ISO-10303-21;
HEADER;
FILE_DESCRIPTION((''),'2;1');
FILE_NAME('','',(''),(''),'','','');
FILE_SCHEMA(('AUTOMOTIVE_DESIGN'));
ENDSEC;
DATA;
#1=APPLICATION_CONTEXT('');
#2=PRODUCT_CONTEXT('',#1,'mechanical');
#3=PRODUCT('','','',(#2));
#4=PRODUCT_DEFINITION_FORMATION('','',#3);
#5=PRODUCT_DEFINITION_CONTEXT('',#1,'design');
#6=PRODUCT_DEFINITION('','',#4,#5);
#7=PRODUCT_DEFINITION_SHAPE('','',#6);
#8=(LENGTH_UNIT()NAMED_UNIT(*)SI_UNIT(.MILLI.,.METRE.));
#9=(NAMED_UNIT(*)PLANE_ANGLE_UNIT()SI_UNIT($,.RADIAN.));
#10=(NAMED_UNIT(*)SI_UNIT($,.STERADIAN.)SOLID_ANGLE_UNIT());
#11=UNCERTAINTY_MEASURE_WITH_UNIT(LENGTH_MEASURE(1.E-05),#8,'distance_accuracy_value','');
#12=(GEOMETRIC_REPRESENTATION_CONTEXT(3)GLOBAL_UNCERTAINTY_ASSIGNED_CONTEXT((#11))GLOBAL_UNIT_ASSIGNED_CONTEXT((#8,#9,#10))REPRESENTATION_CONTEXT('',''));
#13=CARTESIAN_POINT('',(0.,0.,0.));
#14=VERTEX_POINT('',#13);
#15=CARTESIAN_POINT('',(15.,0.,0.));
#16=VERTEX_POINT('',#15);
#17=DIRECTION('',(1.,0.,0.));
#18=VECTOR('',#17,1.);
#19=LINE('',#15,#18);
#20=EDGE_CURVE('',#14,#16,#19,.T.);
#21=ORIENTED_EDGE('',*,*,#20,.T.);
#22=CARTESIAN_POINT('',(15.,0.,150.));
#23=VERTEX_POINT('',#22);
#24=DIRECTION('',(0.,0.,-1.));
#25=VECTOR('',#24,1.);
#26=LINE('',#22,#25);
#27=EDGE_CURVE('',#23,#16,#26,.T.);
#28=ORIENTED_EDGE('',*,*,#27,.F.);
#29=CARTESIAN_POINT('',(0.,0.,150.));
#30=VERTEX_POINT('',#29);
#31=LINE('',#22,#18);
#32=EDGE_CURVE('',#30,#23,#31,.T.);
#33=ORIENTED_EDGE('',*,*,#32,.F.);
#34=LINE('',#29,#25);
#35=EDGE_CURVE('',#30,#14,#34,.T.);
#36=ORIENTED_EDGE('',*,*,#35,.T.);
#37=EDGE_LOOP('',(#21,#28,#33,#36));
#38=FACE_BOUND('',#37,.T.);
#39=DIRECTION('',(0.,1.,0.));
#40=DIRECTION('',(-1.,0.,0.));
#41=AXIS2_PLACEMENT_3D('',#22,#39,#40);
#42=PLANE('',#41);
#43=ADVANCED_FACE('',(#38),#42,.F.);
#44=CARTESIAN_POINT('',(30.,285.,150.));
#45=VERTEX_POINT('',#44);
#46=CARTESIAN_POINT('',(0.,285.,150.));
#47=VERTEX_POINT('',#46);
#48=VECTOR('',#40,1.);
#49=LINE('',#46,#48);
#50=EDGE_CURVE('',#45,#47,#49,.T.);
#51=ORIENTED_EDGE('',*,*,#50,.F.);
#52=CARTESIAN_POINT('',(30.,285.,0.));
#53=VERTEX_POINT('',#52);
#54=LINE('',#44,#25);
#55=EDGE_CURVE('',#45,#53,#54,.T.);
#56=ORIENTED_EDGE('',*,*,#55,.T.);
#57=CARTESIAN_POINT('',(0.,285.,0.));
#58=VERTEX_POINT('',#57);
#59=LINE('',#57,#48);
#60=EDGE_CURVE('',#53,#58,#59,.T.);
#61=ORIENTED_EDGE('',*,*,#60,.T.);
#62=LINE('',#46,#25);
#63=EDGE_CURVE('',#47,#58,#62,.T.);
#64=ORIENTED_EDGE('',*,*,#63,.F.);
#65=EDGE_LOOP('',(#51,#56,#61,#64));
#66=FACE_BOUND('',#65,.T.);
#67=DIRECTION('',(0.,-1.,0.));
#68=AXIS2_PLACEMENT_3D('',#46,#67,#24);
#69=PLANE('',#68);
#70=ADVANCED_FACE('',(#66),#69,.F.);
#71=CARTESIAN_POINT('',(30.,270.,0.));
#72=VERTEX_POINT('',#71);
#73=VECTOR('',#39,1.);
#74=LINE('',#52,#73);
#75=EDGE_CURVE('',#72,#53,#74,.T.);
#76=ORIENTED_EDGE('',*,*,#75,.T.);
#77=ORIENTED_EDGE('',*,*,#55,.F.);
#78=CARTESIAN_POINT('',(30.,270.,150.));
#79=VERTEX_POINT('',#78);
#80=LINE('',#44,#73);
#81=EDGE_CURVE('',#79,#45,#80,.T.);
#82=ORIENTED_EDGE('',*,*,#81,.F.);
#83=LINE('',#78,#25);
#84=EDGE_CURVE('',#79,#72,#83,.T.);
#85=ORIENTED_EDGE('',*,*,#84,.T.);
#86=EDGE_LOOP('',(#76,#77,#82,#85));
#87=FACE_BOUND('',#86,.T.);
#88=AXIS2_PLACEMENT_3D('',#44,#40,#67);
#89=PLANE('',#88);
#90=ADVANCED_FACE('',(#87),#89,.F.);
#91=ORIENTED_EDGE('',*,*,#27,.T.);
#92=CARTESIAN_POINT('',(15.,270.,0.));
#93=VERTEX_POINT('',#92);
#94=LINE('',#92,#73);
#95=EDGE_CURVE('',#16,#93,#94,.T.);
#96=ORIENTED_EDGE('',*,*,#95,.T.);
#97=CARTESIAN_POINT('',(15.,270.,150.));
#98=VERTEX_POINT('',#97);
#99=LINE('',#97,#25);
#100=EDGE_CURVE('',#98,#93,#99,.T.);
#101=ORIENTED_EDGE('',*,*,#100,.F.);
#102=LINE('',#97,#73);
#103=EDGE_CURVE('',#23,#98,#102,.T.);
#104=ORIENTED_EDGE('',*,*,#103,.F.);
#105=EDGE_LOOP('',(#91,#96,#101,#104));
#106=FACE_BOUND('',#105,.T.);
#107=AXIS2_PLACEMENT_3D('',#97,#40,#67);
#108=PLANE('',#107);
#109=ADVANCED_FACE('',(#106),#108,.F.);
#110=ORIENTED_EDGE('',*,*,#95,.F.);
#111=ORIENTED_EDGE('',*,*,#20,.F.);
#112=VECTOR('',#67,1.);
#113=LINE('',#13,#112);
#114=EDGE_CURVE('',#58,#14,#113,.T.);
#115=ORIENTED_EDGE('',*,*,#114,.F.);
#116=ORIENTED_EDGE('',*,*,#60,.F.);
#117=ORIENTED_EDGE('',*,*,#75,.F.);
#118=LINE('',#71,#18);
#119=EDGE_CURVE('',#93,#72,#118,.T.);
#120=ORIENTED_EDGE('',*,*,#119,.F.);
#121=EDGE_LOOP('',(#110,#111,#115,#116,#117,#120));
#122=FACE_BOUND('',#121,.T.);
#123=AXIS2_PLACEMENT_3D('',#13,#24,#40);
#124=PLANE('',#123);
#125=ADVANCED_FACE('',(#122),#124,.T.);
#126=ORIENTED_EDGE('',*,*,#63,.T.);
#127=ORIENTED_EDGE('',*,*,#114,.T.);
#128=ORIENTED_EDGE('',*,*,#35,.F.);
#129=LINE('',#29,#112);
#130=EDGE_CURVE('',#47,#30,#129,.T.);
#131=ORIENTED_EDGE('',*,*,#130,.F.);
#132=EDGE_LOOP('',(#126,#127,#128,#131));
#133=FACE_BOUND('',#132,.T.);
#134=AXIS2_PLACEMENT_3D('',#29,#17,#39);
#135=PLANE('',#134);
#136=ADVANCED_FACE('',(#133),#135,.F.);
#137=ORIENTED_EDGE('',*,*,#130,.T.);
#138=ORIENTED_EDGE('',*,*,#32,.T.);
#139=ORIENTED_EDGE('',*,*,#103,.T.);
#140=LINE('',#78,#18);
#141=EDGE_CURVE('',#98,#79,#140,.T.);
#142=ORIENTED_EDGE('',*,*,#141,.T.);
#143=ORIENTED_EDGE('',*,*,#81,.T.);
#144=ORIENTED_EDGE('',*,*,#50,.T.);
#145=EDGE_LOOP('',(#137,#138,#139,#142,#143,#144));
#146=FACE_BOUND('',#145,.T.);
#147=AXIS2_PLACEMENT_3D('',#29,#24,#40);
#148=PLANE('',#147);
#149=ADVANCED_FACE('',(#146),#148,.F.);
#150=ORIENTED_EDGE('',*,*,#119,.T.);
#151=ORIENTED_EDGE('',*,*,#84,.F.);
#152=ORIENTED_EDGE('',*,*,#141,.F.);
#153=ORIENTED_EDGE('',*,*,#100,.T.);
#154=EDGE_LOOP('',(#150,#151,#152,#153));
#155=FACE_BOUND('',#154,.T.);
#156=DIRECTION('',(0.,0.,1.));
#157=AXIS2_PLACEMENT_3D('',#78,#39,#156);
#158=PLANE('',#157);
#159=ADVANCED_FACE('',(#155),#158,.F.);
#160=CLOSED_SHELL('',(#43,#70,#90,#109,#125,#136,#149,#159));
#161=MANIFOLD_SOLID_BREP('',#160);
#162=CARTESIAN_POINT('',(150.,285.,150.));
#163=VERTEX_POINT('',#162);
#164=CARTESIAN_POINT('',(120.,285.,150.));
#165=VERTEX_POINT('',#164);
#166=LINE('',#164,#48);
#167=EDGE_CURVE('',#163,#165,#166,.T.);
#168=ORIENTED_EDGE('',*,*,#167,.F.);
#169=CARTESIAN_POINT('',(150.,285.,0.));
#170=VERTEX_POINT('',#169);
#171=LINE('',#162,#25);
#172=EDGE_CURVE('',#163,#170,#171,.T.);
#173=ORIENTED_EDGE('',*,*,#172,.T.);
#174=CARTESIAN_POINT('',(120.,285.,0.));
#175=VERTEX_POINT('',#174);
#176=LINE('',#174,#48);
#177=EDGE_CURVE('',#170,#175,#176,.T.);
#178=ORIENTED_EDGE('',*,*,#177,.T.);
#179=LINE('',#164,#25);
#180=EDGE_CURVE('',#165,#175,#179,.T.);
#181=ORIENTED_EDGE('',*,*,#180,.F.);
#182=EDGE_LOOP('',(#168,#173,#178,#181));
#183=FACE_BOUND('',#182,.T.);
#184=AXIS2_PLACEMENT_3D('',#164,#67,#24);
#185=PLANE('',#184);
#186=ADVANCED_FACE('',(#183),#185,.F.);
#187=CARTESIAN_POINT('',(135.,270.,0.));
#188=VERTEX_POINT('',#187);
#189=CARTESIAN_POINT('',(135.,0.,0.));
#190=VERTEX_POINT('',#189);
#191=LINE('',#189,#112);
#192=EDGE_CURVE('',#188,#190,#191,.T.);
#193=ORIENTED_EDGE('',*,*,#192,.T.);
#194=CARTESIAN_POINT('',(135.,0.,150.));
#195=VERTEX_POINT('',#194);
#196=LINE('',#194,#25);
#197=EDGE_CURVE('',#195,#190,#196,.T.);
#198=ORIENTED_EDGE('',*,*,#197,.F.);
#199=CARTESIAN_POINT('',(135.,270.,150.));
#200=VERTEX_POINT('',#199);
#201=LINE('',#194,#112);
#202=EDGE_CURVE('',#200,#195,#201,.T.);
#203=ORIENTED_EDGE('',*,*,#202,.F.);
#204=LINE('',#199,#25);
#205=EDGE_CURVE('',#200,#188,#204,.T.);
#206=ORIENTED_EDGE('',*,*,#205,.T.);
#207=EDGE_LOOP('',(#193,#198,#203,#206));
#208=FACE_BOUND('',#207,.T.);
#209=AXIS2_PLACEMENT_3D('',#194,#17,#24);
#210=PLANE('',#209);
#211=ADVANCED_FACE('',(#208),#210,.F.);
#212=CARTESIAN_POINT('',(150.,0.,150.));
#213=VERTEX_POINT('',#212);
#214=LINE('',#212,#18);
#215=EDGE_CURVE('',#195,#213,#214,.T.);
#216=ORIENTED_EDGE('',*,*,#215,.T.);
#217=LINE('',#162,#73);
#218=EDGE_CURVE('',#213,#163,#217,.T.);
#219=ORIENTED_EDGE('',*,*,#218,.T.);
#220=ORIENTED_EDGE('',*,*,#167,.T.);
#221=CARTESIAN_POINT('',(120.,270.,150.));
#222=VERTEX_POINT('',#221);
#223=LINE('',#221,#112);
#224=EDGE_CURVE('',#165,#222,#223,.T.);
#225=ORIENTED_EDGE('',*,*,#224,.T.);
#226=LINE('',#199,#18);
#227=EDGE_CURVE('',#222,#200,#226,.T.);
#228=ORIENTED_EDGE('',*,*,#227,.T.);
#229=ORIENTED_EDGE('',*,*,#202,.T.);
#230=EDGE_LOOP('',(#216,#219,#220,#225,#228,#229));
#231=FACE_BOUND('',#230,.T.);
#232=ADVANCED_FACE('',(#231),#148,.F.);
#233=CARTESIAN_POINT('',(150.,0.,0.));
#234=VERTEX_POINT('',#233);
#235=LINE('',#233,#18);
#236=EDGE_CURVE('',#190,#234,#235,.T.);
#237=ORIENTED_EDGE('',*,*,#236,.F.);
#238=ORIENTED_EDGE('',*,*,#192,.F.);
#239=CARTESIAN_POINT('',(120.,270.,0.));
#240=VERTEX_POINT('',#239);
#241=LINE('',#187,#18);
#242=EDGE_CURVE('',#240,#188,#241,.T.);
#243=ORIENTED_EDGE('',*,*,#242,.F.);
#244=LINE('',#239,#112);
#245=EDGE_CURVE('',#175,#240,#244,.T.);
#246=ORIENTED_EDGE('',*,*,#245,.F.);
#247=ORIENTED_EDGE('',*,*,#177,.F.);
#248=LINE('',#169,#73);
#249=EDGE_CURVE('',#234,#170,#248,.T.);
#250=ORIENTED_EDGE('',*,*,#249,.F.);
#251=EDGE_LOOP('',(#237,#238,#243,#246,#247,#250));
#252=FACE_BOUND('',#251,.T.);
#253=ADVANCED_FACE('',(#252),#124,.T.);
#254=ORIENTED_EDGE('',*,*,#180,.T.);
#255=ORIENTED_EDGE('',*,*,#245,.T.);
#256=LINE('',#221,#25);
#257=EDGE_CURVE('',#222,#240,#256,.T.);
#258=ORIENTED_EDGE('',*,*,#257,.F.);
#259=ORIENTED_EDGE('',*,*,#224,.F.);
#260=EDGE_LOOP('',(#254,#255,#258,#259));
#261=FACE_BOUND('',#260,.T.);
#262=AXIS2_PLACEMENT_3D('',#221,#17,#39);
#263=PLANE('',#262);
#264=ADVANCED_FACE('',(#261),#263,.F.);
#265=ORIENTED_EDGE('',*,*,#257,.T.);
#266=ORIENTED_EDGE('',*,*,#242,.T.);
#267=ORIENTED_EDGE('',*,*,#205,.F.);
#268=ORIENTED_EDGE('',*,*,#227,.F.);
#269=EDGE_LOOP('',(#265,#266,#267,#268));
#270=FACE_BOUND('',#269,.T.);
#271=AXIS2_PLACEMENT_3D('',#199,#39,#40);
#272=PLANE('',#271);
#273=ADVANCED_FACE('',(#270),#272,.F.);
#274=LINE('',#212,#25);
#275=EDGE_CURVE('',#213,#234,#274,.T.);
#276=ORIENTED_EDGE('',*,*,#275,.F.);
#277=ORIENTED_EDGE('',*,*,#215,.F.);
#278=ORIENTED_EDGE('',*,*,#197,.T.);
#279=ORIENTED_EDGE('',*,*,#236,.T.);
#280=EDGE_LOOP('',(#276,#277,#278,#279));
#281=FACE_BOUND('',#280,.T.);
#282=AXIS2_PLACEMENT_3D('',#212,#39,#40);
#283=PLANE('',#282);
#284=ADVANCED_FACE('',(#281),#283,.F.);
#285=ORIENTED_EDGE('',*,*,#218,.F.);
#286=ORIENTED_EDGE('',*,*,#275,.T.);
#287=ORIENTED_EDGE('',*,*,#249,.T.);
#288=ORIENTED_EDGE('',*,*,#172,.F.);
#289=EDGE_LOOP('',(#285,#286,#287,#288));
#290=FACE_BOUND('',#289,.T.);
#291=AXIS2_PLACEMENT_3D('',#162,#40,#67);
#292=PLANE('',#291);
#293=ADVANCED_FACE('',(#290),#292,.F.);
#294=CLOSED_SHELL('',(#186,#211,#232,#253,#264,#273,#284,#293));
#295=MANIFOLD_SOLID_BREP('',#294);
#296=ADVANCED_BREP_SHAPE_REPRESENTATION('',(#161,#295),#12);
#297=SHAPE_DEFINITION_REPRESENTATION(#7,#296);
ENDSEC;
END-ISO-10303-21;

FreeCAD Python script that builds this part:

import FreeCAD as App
import Part
import Sketcher
Q = App.Units.Quantity


def add_polygon(sketch, points):
    """Adds a closed chain of lines whose ends are joined by coincident constraints."""
    first, n = sketch.GeometryCount, len(points)
    for a, b in zip(points, points[1:] + points[:1]):
        sketch.addGeometry(Part.LineSegment(App.Vector(*a, 0), App.Vector(*b, 0)), False)
    for i in range(n):
        sketch.addConstraint(Sketcher.Constraint("Coincident", first + i, 2, first + (i + 1) % n, 1))

doc = App.newDocument("Part")
body = doc.addObject("PartDesign::Body", "Body")

# Sketch on XY plane
sketch1 = doc.addObject("Sketcher::SketchObject", "Sketch")
body.addObject(sketch1)
sketch1.AttachmentSupport = (doc.XY_Plane, [""])
sketch1.MapMode = "FlatFace"
add_polygon(sketch1, [(0, 285), (0, 0), (15, 0), (15, 270), (30, 270), (30, 285)])  # lines 0-5
sketch1.addConstraint(Sketcher.Constraint("Vertical", 0))
sketch1.addConstraint(Sketcher.Constraint("Horizontal", 1))
sketch1.addConstraint(Sketcher.Constraint("Vertical", 2))
sketch1.addConstraint(Sketcher.Constraint("Horizontal", 3))
sketch1.addConstraint(Sketcher.Constraint("Vertical", 4))
sketch1.addConstraint(Sketcher.Constraint("Horizontal", 5))
sketch1.addConstraint(Sketcher.Constraint("Coincident", 0, 2, -1, 1))
sketch1.addConstraint(Sketcher.Constraint("Equal", 1, 3))
sketch1.addConstraint(Sketcher.Constraint("Equal", 3, 4))
sketch1.addConstraint(Sketcher.Constraint("DistanceX", 1, 1, 1, 2, Q("15 mm")))
sketch1.addConstraint(Sketcher.Constraint("DistanceY", 0, 2, 0, 1, Q("285 mm")))
pad1 = doc.addObject("PartDesign::Pad", "Pad")
body.addObject(pad1)
pad1.Profile = sketch1
pad1.Length = 150
body2 = doc.addObject("PartDesign::Body", "Body001")

# Sketch on XY plane
sketch2 = doc.addObject("Sketcher::SketchObject", "Sketch001")
body2.addObject(sketch2)
sketch2.AttachmentSupport = (doc.getObject("XY_Plane001"), [""])
sketch2.MapMode = "FlatFace"
add_polygon(sketch2, [(135, 270), (135, 0), (150, 0), (150, 285), (120, 285), (120, 270)])  # lines 0-5
sketch2.addConstraint(Sketcher.Constraint("Vertical", 0))
sketch2.addConstraint(Sketcher.Constraint("Horizontal", 1))
sketch2.addConstraint(Sketcher.Constraint("Vertical", 2))
sketch2.addConstraint(Sketcher.Constraint("Horizontal", 3))
sketch2.addConstraint(Sketcher.Constraint("Vertical", 4))
sketch2.addConstraint(Sketcher.Constraint("Horizontal", 5))
sketch2.addConstraint(Sketcher.Constraint("PointOnObject", 0, 2, -1))
sketch2.addConstraint(Sketcher.Constraint("Equal", 1, 5))
sketch2.addConstraint(Sketcher.Constraint("Equal", 5, 4))
sketch2.addConstraint(Sketcher.Constraint("DistanceX", 1, 1, 1, 2, Q("15 mm")))
sketch2.addConstraint(Sketcher.Constraint("DistanceY", 0, 2, 0, 1, Q("270 mm")))
sketch2.addConstraint(Sketcher.Constraint("DistanceX", -1, 1, 0, 2, Q("135 mm")))
pad2 = doc.addObject("PartDesign::Pad", "Pad001")
body2.addObject(pad2)
pad2.Profile = sketch2
pad2.Length = 150

doc.recompute()
